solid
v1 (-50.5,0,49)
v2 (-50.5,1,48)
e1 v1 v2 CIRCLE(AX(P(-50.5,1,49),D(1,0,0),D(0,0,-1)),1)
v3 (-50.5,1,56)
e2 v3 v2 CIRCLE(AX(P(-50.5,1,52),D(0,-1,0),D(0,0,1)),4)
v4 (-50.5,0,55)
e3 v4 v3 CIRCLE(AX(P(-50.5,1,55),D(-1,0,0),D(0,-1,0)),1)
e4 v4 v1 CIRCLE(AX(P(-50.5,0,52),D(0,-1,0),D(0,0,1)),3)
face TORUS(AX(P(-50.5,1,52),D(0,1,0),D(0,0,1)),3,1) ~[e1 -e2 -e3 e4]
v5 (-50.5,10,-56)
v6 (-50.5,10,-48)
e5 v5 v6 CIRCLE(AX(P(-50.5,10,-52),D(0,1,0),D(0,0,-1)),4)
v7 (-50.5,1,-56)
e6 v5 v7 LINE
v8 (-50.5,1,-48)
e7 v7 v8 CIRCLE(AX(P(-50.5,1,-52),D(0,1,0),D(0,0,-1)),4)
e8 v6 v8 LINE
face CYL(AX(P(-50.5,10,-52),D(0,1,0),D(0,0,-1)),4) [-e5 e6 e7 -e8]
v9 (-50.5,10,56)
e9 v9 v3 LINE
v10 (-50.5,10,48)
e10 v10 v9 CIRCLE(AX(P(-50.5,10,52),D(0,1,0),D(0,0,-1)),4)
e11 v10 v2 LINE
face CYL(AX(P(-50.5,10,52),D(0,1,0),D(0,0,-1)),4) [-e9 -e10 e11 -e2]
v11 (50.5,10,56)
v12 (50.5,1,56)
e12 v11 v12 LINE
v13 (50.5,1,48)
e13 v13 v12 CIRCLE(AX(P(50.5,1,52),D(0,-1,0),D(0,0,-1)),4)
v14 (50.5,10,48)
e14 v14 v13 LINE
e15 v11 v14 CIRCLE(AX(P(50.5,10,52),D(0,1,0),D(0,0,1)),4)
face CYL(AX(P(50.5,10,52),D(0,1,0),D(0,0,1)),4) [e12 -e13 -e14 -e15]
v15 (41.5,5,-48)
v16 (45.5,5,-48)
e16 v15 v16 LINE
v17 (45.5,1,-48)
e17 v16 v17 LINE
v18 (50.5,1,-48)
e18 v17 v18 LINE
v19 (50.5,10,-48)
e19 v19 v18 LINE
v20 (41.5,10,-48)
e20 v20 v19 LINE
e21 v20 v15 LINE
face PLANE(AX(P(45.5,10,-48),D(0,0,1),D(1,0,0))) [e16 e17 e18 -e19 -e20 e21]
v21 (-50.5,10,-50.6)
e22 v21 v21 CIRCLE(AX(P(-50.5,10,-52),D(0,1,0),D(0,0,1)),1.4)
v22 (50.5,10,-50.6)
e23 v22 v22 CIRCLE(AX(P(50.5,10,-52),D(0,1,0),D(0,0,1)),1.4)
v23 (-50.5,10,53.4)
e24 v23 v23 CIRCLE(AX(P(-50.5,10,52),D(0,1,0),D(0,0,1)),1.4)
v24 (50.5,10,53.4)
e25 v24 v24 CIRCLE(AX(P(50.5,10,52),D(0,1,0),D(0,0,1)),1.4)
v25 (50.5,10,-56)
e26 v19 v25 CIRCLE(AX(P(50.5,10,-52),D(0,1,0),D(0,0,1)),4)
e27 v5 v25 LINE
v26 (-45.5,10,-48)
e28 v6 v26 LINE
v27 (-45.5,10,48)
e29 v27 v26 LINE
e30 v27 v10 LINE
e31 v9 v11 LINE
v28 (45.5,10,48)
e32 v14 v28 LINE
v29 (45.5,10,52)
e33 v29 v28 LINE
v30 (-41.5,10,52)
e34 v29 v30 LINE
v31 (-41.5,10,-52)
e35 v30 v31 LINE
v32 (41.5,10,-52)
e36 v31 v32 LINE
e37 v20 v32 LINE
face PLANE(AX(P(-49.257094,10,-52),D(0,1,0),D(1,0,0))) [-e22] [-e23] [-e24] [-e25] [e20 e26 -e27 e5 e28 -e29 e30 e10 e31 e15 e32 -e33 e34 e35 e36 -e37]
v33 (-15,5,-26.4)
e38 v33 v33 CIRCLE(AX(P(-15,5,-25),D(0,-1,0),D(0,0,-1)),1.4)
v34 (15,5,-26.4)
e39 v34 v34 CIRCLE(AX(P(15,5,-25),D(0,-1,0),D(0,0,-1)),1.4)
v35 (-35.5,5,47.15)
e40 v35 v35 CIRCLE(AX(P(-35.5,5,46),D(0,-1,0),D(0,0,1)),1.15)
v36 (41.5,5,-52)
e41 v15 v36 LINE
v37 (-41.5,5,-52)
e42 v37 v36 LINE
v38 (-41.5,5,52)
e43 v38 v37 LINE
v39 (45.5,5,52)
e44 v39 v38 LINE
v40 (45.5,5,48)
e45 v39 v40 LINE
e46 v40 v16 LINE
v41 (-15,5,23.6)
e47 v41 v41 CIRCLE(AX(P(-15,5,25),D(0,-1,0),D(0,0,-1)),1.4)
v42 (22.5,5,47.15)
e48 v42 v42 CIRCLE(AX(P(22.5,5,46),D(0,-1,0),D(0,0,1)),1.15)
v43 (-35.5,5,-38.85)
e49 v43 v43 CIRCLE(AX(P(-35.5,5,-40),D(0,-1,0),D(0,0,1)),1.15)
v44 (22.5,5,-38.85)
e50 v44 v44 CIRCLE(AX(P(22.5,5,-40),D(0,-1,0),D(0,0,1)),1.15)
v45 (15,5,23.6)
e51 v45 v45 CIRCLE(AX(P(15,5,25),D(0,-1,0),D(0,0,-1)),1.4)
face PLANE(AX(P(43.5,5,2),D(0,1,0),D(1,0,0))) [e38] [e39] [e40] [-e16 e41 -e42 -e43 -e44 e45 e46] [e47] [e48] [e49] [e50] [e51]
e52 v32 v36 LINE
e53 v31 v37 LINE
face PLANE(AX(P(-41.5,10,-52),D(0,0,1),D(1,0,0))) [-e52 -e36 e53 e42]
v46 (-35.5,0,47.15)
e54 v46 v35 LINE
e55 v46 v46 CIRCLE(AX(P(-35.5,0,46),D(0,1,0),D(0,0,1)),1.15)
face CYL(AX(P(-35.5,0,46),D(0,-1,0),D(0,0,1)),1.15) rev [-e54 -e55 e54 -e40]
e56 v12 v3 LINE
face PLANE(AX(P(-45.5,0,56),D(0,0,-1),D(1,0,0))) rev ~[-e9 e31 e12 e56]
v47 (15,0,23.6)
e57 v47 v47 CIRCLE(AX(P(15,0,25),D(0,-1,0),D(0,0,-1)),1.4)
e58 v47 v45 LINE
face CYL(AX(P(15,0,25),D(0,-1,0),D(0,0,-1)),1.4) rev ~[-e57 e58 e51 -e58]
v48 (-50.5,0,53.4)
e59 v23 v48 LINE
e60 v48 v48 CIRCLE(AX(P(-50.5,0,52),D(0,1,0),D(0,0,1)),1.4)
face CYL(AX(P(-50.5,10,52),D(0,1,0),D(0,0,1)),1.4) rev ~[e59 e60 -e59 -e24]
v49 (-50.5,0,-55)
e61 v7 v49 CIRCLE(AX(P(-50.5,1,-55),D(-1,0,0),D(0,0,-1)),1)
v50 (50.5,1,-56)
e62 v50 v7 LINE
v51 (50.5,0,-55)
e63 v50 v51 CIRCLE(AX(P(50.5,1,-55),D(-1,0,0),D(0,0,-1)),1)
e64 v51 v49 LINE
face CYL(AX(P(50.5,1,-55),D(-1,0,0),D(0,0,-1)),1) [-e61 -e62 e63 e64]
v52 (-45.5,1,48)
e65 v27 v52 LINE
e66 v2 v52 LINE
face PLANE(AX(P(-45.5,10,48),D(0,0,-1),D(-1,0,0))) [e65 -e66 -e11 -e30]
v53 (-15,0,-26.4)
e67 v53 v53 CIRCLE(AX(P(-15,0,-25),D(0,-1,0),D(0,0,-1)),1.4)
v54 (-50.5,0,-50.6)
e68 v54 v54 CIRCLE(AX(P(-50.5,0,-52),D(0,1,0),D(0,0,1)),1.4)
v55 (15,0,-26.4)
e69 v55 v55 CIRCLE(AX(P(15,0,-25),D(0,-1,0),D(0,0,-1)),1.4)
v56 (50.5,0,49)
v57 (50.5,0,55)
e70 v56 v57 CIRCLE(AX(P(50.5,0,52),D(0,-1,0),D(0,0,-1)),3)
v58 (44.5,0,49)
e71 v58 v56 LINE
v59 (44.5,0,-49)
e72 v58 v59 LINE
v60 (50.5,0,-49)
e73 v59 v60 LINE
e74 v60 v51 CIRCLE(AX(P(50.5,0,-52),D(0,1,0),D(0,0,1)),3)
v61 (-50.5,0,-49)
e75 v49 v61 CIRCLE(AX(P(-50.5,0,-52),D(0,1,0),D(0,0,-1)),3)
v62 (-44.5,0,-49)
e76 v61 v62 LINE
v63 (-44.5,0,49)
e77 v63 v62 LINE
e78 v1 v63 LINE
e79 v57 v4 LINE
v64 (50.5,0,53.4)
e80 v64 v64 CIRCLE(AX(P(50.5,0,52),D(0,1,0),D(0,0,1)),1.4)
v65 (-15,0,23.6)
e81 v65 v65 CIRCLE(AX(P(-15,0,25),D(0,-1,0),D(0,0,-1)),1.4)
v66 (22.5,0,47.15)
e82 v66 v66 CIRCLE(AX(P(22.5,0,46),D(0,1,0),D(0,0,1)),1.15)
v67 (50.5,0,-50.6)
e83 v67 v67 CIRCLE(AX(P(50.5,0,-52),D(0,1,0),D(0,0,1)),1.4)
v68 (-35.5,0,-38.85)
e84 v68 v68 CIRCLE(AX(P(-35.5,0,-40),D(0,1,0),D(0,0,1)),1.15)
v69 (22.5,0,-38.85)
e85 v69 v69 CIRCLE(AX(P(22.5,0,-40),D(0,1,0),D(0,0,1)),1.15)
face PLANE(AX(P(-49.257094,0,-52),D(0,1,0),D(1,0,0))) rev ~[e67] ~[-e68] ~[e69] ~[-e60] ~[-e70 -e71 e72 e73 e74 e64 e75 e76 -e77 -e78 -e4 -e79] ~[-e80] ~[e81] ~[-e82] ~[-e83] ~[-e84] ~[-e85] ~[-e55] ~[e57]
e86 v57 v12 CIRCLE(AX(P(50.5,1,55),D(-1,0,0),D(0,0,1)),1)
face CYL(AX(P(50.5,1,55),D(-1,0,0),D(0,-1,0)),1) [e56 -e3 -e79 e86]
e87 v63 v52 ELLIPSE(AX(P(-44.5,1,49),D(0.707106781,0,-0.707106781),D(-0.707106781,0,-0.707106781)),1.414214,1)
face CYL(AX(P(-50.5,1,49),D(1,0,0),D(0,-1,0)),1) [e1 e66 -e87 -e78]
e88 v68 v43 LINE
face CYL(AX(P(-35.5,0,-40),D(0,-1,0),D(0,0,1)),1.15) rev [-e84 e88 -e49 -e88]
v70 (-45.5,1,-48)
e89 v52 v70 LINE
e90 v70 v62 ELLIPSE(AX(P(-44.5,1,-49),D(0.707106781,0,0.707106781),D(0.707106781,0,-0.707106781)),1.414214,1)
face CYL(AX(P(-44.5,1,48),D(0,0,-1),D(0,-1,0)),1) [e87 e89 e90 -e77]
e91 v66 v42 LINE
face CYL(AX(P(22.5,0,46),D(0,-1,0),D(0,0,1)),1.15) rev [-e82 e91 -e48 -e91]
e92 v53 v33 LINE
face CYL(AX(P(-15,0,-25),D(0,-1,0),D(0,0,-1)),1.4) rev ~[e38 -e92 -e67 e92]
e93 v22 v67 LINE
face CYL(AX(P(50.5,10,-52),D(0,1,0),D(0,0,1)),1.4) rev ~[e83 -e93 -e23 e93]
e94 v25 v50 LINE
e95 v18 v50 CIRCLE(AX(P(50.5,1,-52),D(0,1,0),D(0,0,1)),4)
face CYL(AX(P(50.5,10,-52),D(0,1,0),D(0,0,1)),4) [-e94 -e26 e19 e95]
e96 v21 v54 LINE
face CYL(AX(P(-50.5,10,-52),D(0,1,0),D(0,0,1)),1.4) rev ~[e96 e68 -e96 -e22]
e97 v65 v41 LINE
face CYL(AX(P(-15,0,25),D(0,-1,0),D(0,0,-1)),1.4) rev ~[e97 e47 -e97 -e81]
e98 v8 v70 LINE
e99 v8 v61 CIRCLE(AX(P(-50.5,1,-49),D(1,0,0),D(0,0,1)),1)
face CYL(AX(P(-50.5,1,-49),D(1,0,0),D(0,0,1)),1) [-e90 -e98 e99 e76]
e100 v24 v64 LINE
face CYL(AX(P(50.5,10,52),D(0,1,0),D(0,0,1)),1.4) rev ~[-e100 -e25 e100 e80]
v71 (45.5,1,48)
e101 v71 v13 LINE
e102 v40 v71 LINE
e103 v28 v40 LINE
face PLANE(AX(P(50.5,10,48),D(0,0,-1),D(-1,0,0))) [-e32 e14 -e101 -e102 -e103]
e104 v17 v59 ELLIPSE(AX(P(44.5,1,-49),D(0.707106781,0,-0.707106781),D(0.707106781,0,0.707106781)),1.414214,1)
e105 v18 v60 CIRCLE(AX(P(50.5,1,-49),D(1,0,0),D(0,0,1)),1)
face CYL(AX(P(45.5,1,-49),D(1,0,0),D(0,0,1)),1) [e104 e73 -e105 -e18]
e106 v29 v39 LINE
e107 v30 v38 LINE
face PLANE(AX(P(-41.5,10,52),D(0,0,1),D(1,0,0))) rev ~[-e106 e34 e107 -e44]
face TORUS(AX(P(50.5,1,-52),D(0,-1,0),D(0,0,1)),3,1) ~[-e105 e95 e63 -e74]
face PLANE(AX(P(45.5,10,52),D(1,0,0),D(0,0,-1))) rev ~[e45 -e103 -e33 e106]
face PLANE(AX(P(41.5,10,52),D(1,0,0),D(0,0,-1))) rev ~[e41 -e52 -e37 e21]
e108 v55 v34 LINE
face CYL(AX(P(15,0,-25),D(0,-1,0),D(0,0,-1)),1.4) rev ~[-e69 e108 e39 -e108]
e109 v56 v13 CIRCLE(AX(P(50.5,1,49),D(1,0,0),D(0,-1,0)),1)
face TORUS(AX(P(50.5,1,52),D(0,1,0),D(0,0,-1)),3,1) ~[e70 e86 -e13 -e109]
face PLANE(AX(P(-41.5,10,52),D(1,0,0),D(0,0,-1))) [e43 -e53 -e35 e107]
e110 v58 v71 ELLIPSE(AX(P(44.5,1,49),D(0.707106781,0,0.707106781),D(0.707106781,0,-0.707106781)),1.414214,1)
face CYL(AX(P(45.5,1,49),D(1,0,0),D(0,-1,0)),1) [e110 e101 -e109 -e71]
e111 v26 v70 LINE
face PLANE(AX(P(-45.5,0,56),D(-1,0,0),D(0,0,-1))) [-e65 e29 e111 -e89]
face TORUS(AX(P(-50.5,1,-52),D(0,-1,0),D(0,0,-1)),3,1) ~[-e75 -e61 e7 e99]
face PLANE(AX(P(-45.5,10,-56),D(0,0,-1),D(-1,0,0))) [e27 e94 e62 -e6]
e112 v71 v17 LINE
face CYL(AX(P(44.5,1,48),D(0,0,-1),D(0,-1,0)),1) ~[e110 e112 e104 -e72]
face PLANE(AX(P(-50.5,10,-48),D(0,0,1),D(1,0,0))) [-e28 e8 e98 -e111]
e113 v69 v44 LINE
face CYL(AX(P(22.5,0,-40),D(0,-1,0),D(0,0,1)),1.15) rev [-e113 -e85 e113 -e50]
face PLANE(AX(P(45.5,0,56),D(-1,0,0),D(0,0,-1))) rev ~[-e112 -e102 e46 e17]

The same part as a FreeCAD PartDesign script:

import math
import FreeCAD as App
import Part
import Sketcher
from FreeCAD import Vector


def edges_at(feature, points):
    """Names of the edges that pass closest to the given points."""
    edges = feature.Shape.Edges
    near = lambda p: min(range(len(edges)), key=lambda i: edges[i].distToShape(Part.Vertex(*p))[0])
    return sorted({f"Edge{near(p) + 1}" for p in points})

doc = App.newDocument("Part")
params = doc.addObject("Spreadsheet::Sheet", "Params")
for row, (alias, value) in enumerate([
    ("sketch1_diameter", "2.3 mm"),
    ("sketch1_width", "91 mm"),
    ("sketch1_height", "112 mm"),
    ("pad1_length", "10 mm"),
    ("sketch2_width", "83 mm"),
    ("sketch2_height", "104 mm"),
    ("pocket1_length", "5 mm"),
    ("sketch3_radius", "4 mm"),
    ("sketch3_diameter", "2.8 mm"),
    ("sketch3_width", "5 mm"),
    ("pad2_length", "10 mm"),
    ("sketch4_width", "4 mm"),
    ("sketch4_height", "100 mm"),
    ("pocket2_length", "5 mm"),
    ("sketch5_diameter", "2.8 mm"),
    ("sketch6_diameter", "2.8 mm"),
    ("sketch7_diameter", "2.8 mm"),
    ("sketch8_diameter", "2.8 mm"),
    ("fillet_radius", "1 mm"),
], start=1):
    params.set(f"A{row}", alias)
    params.set(f"B{row}", "=" + value)
    params.setAlias(f"B{row}", alias)

body = doc.addObject("PartDesign::Body", "Body")

sketch1 = body.newObject("Sketcher::SketchObject", "Sketch")
sketch1.AttachmentSupport = (doc.getObject("XZ_Plane"), [""])
sketch1.MapMode = "FlatFace"
sketch1.addGeometry([
    Part.LineSegment(Vector(-45.5, -56, 0), Vector(-45.5, 56, 0)),
    Part.LineSegment(Vector(-45.5, 56, 0), Vector(45.5, 56, 0)),
    Part.LineSegment(Vector(45.5, 56, 0), Vector(45.5, -56, 0)),
    Part.LineSegment(Vector(45.5, -56, 0), Vector(-45.5, -56, 0)),
    Part.Circle(Vector(-35.5, 46, 0), Vector(0, 0, 1), 1.15),
    Part.Circle(Vector(22.5, 46, 0), Vector(0, 0, 1), 1.15),
    Part.Circle(Vector(-35.5, -40, 0), Vector(0, 0, 1), 1.15),
    Part.Circle(Vector(22.5, -40, 0), Vector(0, 0, 1), 1.15),
], False)
sketch1.addConstraint([
    Sketcher.Constraint("Coincident", 0, 2, 1, 1),
    Sketcher.Constraint("Coincident", 1, 2, 2, 1),
    Sketcher.Constraint("Coincident", 2, 2, 3, 1),
    Sketcher.Constraint("Coincident", 3, 2, 0, 1),
    Sketcher.Constraint("Vertical", 0),
    Sketcher.Constraint("Horizontal", 1),
    Sketcher.Constraint("Vertical", 2),
    Sketcher.Constraint("Horizontal", 3),
    Sketcher.Constraint("Equal", 4, 5),
    Sketcher.Constraint("Equal", 5, 6),
    Sketcher.Constraint("Equal", 6, 7),
    Sketcher.Constraint("Symmetric", 0, 2, 2, 2, -1, 1),
    Sketcher.Constraint("Horizontal", 4, 3, 5, 3),
    Sketcher.Constraint("Horizontal", 6, 3, 7, 3),
    Sketcher.Constraint("Vertical", 4, 3, 6, 3),
    Sketcher.Constraint("Vertical", 5, 3, 7, 3),
    Sketcher.Constraint("Diameter", 4, 2.3),
    Sketcher.Constraint("DistanceX", 1, 1, 1, 2, 91.0),
    Sketcher.Constraint("DistanceY", 0, 1, 0, 2, 112.0),
    Sketcher.Constraint("DistanceY", -1, 1, 4, 3, 46.0),
    Sketcher.Constraint("DistanceY", 6, 3, -1, 1, 40.0),
    Sketcher.Constraint("DistanceX", 4, 3, 5, 3, 58.0),
    Sketcher.Constraint("DistanceX", 0, 2, 4, 3, 10.0),
])
sketch1.setExpression("Constraints[16]", "Params.sketch1_diameter")
sketch1.setExpression("Constraints[17]", "Params.sketch1_width")
sketch1.setExpression("Constraints[18]", "Params.sketch1_height")
pad1 = body.newObject("PartDesign::Pad", "Pad")
pad1.Profile = sketch1
pad1.setExpression("Length", "Params.pad1_length")
pad1.Reversed = True

sketch2 = body.newObject("Sketcher::SketchObject", "Sketch001")
sketch2.AttachmentSupport = (doc.getObject("XZ_Plane"), [""])
sketch2.MapMode = "FlatFace"
sketch2.AttachmentOffset = App.Placement(Vector(0, 0, -10), App.Rotation())
sketch2.addGeometry([
    Part.LineSegment(Vector(-41.5, -52, 0), Vector(-41.5, 52, 0)),
    Part.LineSegment(Vector(-41.5, 52, 0), Vector(41.5, 52, 0)),
    Part.LineSegment(Vector(41.5, 52, 0), Vector(41.5, -52, 0)),
    Part.LineSegment(Vector(41.5, -52, 0), Vector(-41.5, -52, 0)),
], False)
sketch2.addConstraint([
    Sketcher.Constraint("Coincident", 0, 2, 1, 1),
    Sketcher.Constraint("Coincident", 1, 2, 2, 1),
    Sketcher.Constraint("Coincident", 2, 2, 3, 1),
    Sketcher.Constraint("Coincident", 3, 2, 0, 1),
    Sketcher.Constraint("Vertical", 0),
    Sketcher.Constraint("Horizontal", 1),
    Sketcher.Constraint("Vertical", 2),
    Sketcher.Constraint("Horizontal", 3),
    Sketcher.Constraint("Symmetric", 0, 2, 2, 2, -1, 1),
    Sketcher.Constraint("DistanceX", 1, 1, 1, 2, 83.0),
    Sketcher.Constraint("DistanceY", 0, 1, 0, 2, 104.0),
])
sketch2.setExpression("Constraints[9]", "Params.sketch2_width")
sketch2.setExpression("Constraints[10]", "Params.sketch2_height")
pocket1 = body.newObject("PartDesign::Pocket", "Pocket")
pocket1.Profile = sketch2
pocket1.setExpression("Length", "Params.pocket1_length")
pocket1.Reversed = True

sketch3 = body.newObject("Sketcher::SketchObject", "Sketch002")
sketch3.AttachmentSupport = (doc.getObject("XZ_Plane"), [""])
sketch3.MapMode = "FlatFace"
sketch3.AttachmentOffset = App.Placement(Vector(0, 0, -10), App.Rotation())
sketch3.addGeometry([
    Part.LineSegment(Vector(-45.5, -56, 0), Vector(-50.5, -56, 0)),
    Part.ArcOfCircle(Part.Circle(Vector(-50.5, -52, 0), Vector(0, 0, 1), 4), math.radians(90), math.radians(270)),
    Part.LineSegment(Vector(-50.5, -48, 0), Vector(-45.5, -48, 0)),
    Part.LineSegment(Vector(-45.5, -48, 0), Vector(-45.5, -56, 0)),
    Part.Circle(Vector(-50.5, -52, 0), Vector(0, 0, 1), 1.4),
    Part.LineSegment(Vector(45.5, -48, 0), Vector(50.5, -48, 0)),
    Part.ArcOfCircle(Part.Circle(Vector(50.5, -52, 0), Vector(0, 0, 1), 4), math.radians(-90), math.radians(90)),
    Part.LineSegment(Vector(50.5, -56, 0), Vector(45.5, -56, 0)),
    Part.LineSegment(Vector(45.5, -56, 0), Vector(45.5, -48, 0)),
    Part.Circle(Vector(50.5, -52, 0), Vector(0, 0, 1), 1.4),
    Part.LineSegment(Vector(45.5, 56, 0), Vector(50.5, 56, 0)),
    Part.ArcOfCircle(Part.Circle(Vector(50.5, 52, 0), Vector(0, 0, 1), 4), math.radians(-90), math.radians(90)),
    Part.LineSegment(Vector(50.5, 48, 0), Vector(45.5, 48, 0)),
    Part.LineSegment(Vector(45.5, 48, 0), Vector(45.5, 56, 0)),
    Part.Circle(Vector(50.5, 52, 0), Vector(0, 0, 1), 1.4),
    Part.LineSegment(Vector(-45.5, 48, 0), Vector(-50.5, 48, 0)),
    Part.ArcOfCircle(Part.Circle(Vector(-50.5, 52, 0), Vector(0, 0, 1), 4), math.radians(90), math.radians(270)),
    Part.LineSegment(Vector(-50.5, 56, 0), Vector(-45.5, 56, 0)),
    Part.LineSegment(Vector(-45.5, 56, 0), Vector(-45.5, 48, 0)),
    Part.Circle(Vector(-50.5, 52, 0), Vector(0, 0, 1), 1.4),
], False)
sketch3.addConstraint([
    Sketcher.Constraint("Tangent", 0, 2, 1, 2),
    Sketcher.Constraint("Tangent", 1, 1, 2, 1),
    Sketcher.Constraint("Coincident", 2, 2, 3, 1),
    Sketcher.Constraint("Coincident", 3, 2, 0, 1),
    Sketcher.Constraint("Tangent", 5, 2, 6, 2),
    Sketcher.Constraint("Tangent", 6, 1, 7, 1),
    Sketcher.Constraint("Coincident", 7, 2, 8, 1),
    Sketcher.Constraint("Coincident", 8, 2, 5, 1),
    Sketcher.Constraint("Tangent", 10, 2, 11, 2),
    Sketcher.Constraint("Tangent", 11, 1, 12, 1),
    Sketcher.Constraint("Coincident", 12, 2, 13, 1),
    Sketcher.Constraint("Coincident", 13, 2, 10, 1),
    Sketcher.Constraint("Tangent", 15, 2, 16, 2),
    Sketcher.Constraint("Tangent", 16, 1, 17, 1),
    Sketcher.Constraint("Coincident", 17, 2, 18, 1),
    Sketcher.Constraint("Coincident", 18, 2, 15, 1),
    Sketcher.Constraint("Horizontal", 0),
    Sketcher.Constraint("Horizontal", 2),
    Sketcher.Constraint("Vertical", 3),
    Sketcher.Constraint("Horizontal", 5),
    Sketcher.Constraint("Horizontal", 7),
    Sketcher.Constraint("Vertical", 8),
    Sketcher.Constraint("Horizontal", 10),
    Sketcher.Constraint("Horizontal", 12),
    Sketcher.Constraint("Vertical", 13),
    Sketcher.Constraint("Horizontal", 15),
    Sketcher.Constraint("Horizontal", 17),
    Sketcher.Constraint("Vertical", 18),
    Sketcher.Constraint("Coincident", 4, 3, 1, 3),
    Sketcher.Constraint("Coincident", 9, 3, 6, 3),
    Sketcher.Constraint("Coincident", 14, 3, 11, 3),
    Sketcher.Constraint("Coincident", 19, 3, 16, 3),
    Sketcher.Constraint("Equal", 1, 6),
    Sketcher.Constraint("Equal", 4, 9),
    Sketcher.Constraint("Equal", 6, 11),
    Sketcher.Constraint("Equal", 9, 14),
    Sketcher.Constraint("Equal", 11, 16),
    Sketcher.Constraint("Equal", 14, 19),
    Sketcher.Constraint("Symmetric", 1, 3, 11, 3, -1, 1),
    Sketcher.Constraint("Symmetric", 6, 3, 16, 3, -1, 1),
    Sketcher.Constraint("Symmetric", 1, 3, 6, 3, -2),
    Sketcher.Constraint("Vertical", 8, 2, 12, 2),
    Sketcher.Constraint("Vertical", 3, 2, 17, 2),
    Sketcher.Constraint("Equal", 2, 5),
    Sketcher.Constraint("Radius", 1, 4.0),
    Sketcher.Constraint("Diameter", 4, 2.8),
    Sketcher.Constraint("DistanceX", 0, 2, 0, 1, 5.0),
    Sketcher.Constraint("DistanceY", 1, 3, -1, 1, 52.0),
    Sketcher.Constraint("DistanceX", 1, 3, 6, 3, 101.0),
])
sketch3.setExpression("Constraints[44]", "Params.sketch3_radius")
sketch3.setExpression("Constraints[45]", "Params.sketch3_diameter")
sketch3.setExpression("Constraints[46]", "Params.sketch3_width")
pad2 = body.newObject("PartDesign::Pad", "Pad001")
pad2.Profile = sketch3
pad2.setExpression("Length", "Params.pad2_length")

sketch4 = body.newObject("Sketcher::SketchObject", "Sketch003")
sketch4.AttachmentSupport = (doc.getObject("XZ_Plane"), [""])
sketch4.MapMode = "FlatFace"
sketch4.AttachmentOffset = App.Placement(Vector(0, 0, -10), App.Rotation())
sketch4.addGeometry([
    Part.LineSegment(Vector(41.5, -48, 0), Vector(41.5, 52, 0)),
    Part.LineSegment(Vector(41.5, 52, 0), Vector(45.5, 52, 0)),
    Part.LineSegment(Vector(45.5, 52, 0), Vector(45.5, -48, 0)),
    Part.LineSegment(Vector(45.5, -48, 0), Vector(41.5, -48, 0)),
], False)
sketch4.addConstraint([
    Sketcher.Constraint("Coincident", 0, 2, 1, 1),
    Sketcher.Constraint("Coincident", 1, 2, 2, 1),
    Sketcher.Constraint("Coincident", 2, 2, 3, 1),
    Sketcher.Constraint("Coincident", 3, 2, 0, 1),
    Sketcher.Constraint("Vertical", 0),
    Sketcher.Constraint("Horizontal", 1),
    Sketcher.Constraint("Vertical", 2),
    Sketcher.Constraint("Horizontal", 3),
    Sketcher.Constraint("DistanceX", 1, 1, 1, 2, 4.0),
    Sketcher.Constraint("DistanceY", 0, 1, 0, 2, 100.0),
    Sketcher.Constraint("DistanceY", -1, 1, 0, 2, 52.0),
    Sketcher.Constraint("DistanceX", -1, 1, 0, 2, 41.5),
])
sketch4.setExpression("Constraints[8]", "Params.sketch4_width")
sketch4.setExpression("Constraints[9]", "Params.sketch4_height")
pocket2 = body.newObject("PartDesign::Pocket", "Pocket001")
pocket2.Profile = sketch4
pocket2.setExpression("Length", "Params.pocket2_length")
pocket2.Reversed = True

sketch5 = body.newObject("Sketcher::SketchObject", "Sketch004")
sketch5.AttachmentSupport = (doc.getObject("XZ_Plane"), [""])
sketch5.MapMode = "FlatFace"
sketch5.addGeometry(Part.Circle(Vector(-15, 25, 0), Vector(0, 0, 1), 1.4), False)
sketch5.addConstraint([
    Sketcher.Constraint("Diameter", 0, 2.8),
    Sketcher.Constraint("DistanceX", 0, 3, -1, 1, 15.0),
    Sketcher.Constraint("DistanceY", -1, 1, 0, 3, 25.0),
])
sketch5.setExpression("Constraints[0]", "Params.sketch5_diameter")
pocket3 = body.newObject("PartDesign::Pocket", "Pocket002")
pocket3.Profile = sketch5
pocket3.Type = "UpToFirst"

sketch6 = body.newObject("Sketcher::SketchObject", "Sketch005")
sketch6.AttachmentSupport = (doc.getObject("XZ_Plane"), [""])
sketch6.MapMode = "FlatFace"
sketch6.addGeometry(Part.Circle(Vector(-15, -25, 0), Vector(0, 0, 1), 1.4), False)
sketch6.addConstraint([
    Sketcher.Constraint("Diameter", 0, 2.8),
    Sketcher.Constraint("DistanceX", 0, 3, -1, 1, 15.0),
    Sketcher.Constraint("DistanceY", 0, 3, -1, 1, 25.0),
])
sketch6.setExpression("Constraints[0]", "Params.sketch6_diameter")
pocket4 = body.newObject("PartDesign::Pocket", "Pocket003")
pocket4.Profile = sketch6
pocket4.Type = "UpToFirst"

sketch7 = body.newObject("Sketcher::SketchObject", "Sketch006")
sketch7.AttachmentSupport = (doc.getObject("XZ_Plane"), [""])
sketch7.MapMode = "FlatFace"
sketch7.addGeometry(Part.Circle(Vector(15, -25, 0), Vector(0, 0, 1), 1.4), False)
sketch7.addConstraint([
    Sketcher.Constraint("Diameter", 0, 2.8),
    Sketcher.Constraint("DistanceX", -1, 1, 0, 3, 15.0),
    Sketcher.Constraint("DistanceY", 0, 3, -1, 1, 25.0),
])
sketch7.setExpression("Constraints[0]", "Params.sketch7_diameter")
pocket5 = body.newObject("PartDesign::Pocket", "Pocket004")
pocket5.Profile = sketch7
pocket5.Type = "UpToFirst"

sketch8 = body.newObject("Sketcher::SketchObject", "Sketch007")
sketch8.AttachmentSupport = (doc.getObject("XZ_Plane"), [""])
sketch8.MapMode = "FlatFace"
sketch8.addGeometry(Part.Circle(Vector(15, 25, 0), Vector(0, 0, 1), 1.4), False)
sketch8.addConstraint([
    Sketcher.Constraint("Diameter", 0, 2.8),
    Sketcher.Constraint("DistanceX", -1, 1, 0, 3, 15.0),
    Sketcher.Constraint("DistanceY", -1, 1, 0, 3, 25.0),
])
sketch8.setExpression("Constraints[0]", "Params.sketch8_diameter")
pocket6 = body.newObject("PartDesign::Pocket", "Pocket005")
pocket6.Profile = sketch8
pocket6.Type = "UpToFirst"
doc.recompute()

fillet = body.newObject("PartDesign::Fillet", "Fillet")
fillet.Base = (pocket6, edges_at(pocket6, [
    (0, 0, -56),
    (-45.5, 0, 0),
    (-48, 0, -48),
    (-54.5, 0, -52),
    (0, 0, 56),
    (54.5, 0, -52),
    (48, 0, -48),
    (45.5, 0, 0),
    (54.5, 0, 52),
    (48, 0, 48),
    (-54.5, 0, 52),
    (-48, 0, 48),
]))
fillet.setExpression("Radius", "Params.fillet_radius")

doc.recompute()
